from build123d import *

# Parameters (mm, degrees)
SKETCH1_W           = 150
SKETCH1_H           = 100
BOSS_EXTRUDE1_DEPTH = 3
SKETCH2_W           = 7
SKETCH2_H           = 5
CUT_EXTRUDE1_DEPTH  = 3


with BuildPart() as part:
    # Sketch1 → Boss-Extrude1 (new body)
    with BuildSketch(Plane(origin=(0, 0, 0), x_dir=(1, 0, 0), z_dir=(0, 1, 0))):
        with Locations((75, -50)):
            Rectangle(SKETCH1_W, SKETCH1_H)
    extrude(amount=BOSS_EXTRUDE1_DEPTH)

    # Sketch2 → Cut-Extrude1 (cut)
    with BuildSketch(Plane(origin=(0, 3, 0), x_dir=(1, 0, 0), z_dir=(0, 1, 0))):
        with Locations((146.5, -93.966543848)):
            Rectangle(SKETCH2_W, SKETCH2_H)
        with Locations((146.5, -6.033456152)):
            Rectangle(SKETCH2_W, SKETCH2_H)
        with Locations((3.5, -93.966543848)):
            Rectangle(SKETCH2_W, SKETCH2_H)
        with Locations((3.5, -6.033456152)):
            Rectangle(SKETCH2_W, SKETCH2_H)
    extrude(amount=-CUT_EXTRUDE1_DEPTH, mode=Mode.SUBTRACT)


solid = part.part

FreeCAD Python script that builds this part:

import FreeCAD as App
import Part
import Sketcher

V = App.Vector
Q = App.Units.Quantity

doc = App.newDocument("Part")
body = doc.addObject("PartDesign::Body", "Body")

# Sketch on XZ plane
sketch1 = body.newObject("Sketcher::SketchObject", "Sketch")
sketch1.AttachmentSupport = (doc.getObject("XZ_Plane"), [""])
sketch1.MapMode = "FlatFace"
sketch1.addGeometry(Part.LineSegment(V(0, 0, 0), V(0, 100, 0)), False)
sketch1.addGeometry(Part.LineSegment(V(0, 100, 0), V(150, 100, 0)), False)
sketch1.addGeometry(Part.LineSegment(V(150, 100, 0), V(150, 0, 0)), False)
sketch1.addGeometry(Part.LineSegment(V(150, 0, 0), V(0, 0, 0)), False)
sketch1.addConstraint(Sketcher.Constraint("Coincident", 0, 2, 1, 1))
sketch1.addConstraint(Sketcher.Constraint("Coincident", 1, 2, 2, 1))
sketch1.addConstraint(Sketcher.Constraint("Coincident", 2, 2, 3, 1))
sketch1.addConstraint(Sketcher.Constraint("Coincident", 3, 2, 0, 1))
sketch1.addConstraint(Sketcher.Constraint("Vertical", 0))
sketch1.addConstraint(Sketcher.Constraint("Horizontal", 1))
sketch1.addConstraint(Sketcher.Constraint("Vertical", 2))
sketch1.addConstraint(Sketcher.Constraint("Horizontal", 3))
sketch1.addConstraint(Sketcher.Constraint("Coincident", 3, 2, -1, 1))
sketch1.addConstraint(Sketcher.Constraint("DistanceX", 1, 1, 1, 2, Q("150 mm")))
sketch1.addConstraint(Sketcher.Constraint("DistanceY", 0, 1, 0, 2, Q("100 mm")))
pad1 = body.newObject("PartDesign::Pad", "Pad")
pad1.Profile = sketch1
pad1.Length = 3
pad1.Reversed = True

# Sketch on XZ plane
sketch2 = body.newObject("Sketcher::SketchObject", "Sketch001")
sketch2.AttachmentSupport = (doc.getObject("XZ_Plane"), [""])
sketch2.MapMode = "FlatFace"
sketch2.AttachmentOffset = App.Placement(V(0, 0, -3), App.Rotation())
sketch2.addGeometry(Part.LineSegment(V(143, 91.466544, 0), V(143, 96.466544, 0)), False)
sketch2.addGeometry(Part.LineSegment(V(143, 96.466544, 0), V(150, 96.466544, 0)), False)
sketch2.addGeometry(Part.LineSegment(V(150, 96.466544, 0), V(150, 91.466544, 0)), False)
sketch2.addGeometry(Part.LineSegment(V(150, 91.466544, 0), V(143, 91.466544, 0)), False)
sketch2.addGeometry(Part.LineSegment(V(143, 3.533456, 0), V(143, 8.533456, 0)), False)
sketch2.addGeometry(Part.LineSegment(V(143, 8.533456, 0), V(150, 8.533456, 0)), False)
sketch2.addGeometry(Part.LineSegment(V(150, 8.533456, 0), V(150, 3.533456, 0)), False)
sketch2.addGeometry(Part.LineSegment(V(150, 3.533456, 0), V(143, 3.533456, 0)), False)
sketch2.addGeometry(Part.LineSegment(V(0, 91.466544, 0), V(0, 96.466544, 0)), False)
sketch2.addGeometry(Part.LineSegment(V(0, 96.466544, 0), V(7, 96.466544, 0)), False)
sketch2.addGeometry(Part.LineSegment(V(7, 96.466544, 0), V(7, 91.466544, 0)), False)
sketch2.addGeometry(Part.LineSegment(V(7, 91.466544, 0), V(0, 91.466544, 0)), False)
sketch2.addGeometry(Part.LineSegment(V(0, 3.533456, 0), V(0, 8.533456, 0)), False)
sketch2.addGeometry(Part.LineSegment(V(0, 8.533456, 0), V(7, 8.533456, 0)), False)
sketch2.addGeometry(Part.LineSegment(V(7, 8.533456, 0), V(7, 3.533456, 0)), False)
sketch2.addGeometry(Part.LineSegment(V(7, 3.533456, 0), V(0, 3.533456, 0)), False)
sketch2.addConstraint(Sketcher.Constraint("Coincident", 0, 2, 1, 1))
sketch2.addConstraint(Sketcher.Constraint("Coincident", 1, 2, 2, 1))
sketch2.addConstraint(Sketcher.Constraint("Coincident", 2, 2, 3, 1))
sketch2.addConstraint(Sketcher.Constraint("Coincident", 3, 2, 0, 1))
sketch2.addConstraint(Sketcher.Constraint("Coincident", 4, 2, 5, 1))
sketch2.addConstraint(Sketcher.Constraint("Coincident", 5, 2, 6, 1))
sketch2.addConstraint(Sketcher.Constraint("Coincident", 6, 2, 7, 1))
sketch2.addConstraint(Sketcher.Constraint("Coincident", 7, 2, 4, 1))
sketch2.addConstraint(Sketcher.Constraint("Coincident", 8, 2, 9, 1))
sketch2.addConstraint(Sketcher.Constraint("Coincident", 9, 2, 10, 1))
sketch2.addConstraint(Sketcher.Constraint("Coincident", 10, 2, 11, 1))
sketch2.addConstraint(Sketcher.Constraint("Coincident", 11, 2, 8, 1))
sketch2.addConstraint(Sketcher.Constraint("Coincident", 12, 2, 13, 1))
sketch2.addConstraint(Sketcher.Constraint("Coincident", 13, 2, 14, 1))
sketch2.addConstraint(Sketcher.Constraint("Coincident", 14, 2, 15, 1))
sketch2.addConstraint(Sketcher.Constraint("Coincident", 15, 2, 12, 1))
sketch2.addConstraint(Sketcher.Constraint("Vertical", 0))
sketch2.addConstraint(Sketcher.Constraint("Horizontal", 1))
sketch2.addConstraint(Sketcher.Constraint("Vertical", 2))
sketch2.addConstraint(Sketcher.Constraint("Horizontal", 3))
sketch2.addConstraint(Sketcher.Constraint("Vertical", 4))
sketch2.addConstraint(Sketcher.Constraint("Horizontal", 5))
sketch2.addConstraint(Sketcher.Constraint("Vertical", 6))
sketch2.addConstraint(Sketcher.Constraint("Horizontal", 7))
sketch2.addConstraint(Sketcher.Constraint("Vertical", 8))
sketch2.addConstraint(Sketcher.Constraint("Horizontal", 9))
sketch2.addConstraint(Sketcher.Constraint("Vertical", 10))
sketch2.addConstraint(Sketcher.Constraint("Horizontal", 11))
sketch2.addConstraint(Sketcher.Constraint("Vertical", 12))
sketch2.addConstraint(Sketcher.Constraint("Horizontal", 13))
sketch2.addConstraint(Sketcher.Constraint("Vertical", 14))
sketch2.addConstraint(Sketcher.Constraint("Horizontal", 15))
sketch2.addConstraint(Sketcher.Constraint("PointOnObject", 8, 2, -2))
sketch2.addConstraint(Sketcher.Constraint("PointOnObject", 12, 2, -2))
sketch2.addConstraint(Sketcher.Constraint("Horizontal", 1, 2, 8, 2))
sketch2.addConstraint(Sketcher.Constraint("Horizontal", 3, 2, 10, 2))
sketch2.addConstraint(Sketcher.Constraint("Horizontal", 5, 2, 12, 2))
sketch2.addConstraint(Sketcher.Constraint("Horizontal", 7, 2, 14, 2))
sketch2.addConstraint(Sketcher.Constraint("Vertical", 3, 2, 4, 2))
sketch2.addConstraint(Sketcher.Constraint("Vertical", 2, 2, 5, 2))
sketch2.addConstraint(Sketcher.Constraint("Vertical", 10, 2, 13, 2))
sketch2.addConstraint(Sketcher.Constraint("Equal", 7, 9))
sketch2.addConstraint(Sketcher.Constraint("Equal", 2, 4))
sketch2.addConstraint(Sketcher.Constraint("DistanceX", 1, 1, 1, 2, Q("7 mm")))
sketch2.addConstraint(Sketcher.Constraint("DistanceY", 0, 1, 0, 2, Q("5 mm")))
sketch2.addConstraint(Sketcher.Constraint("DistanceX", -1, 1, 0, 2, Q("143 mm")))
sketch2.addConstraint(Sketcher.Constraint("DistanceY", -1, 1, 0, 2, Q("96.466544 mm")))
sketch2.addConstraint(Sketcher.Constraint("DistanceY", -1, 1, 4, 2, Q("8.533456 mm")))
pocket1 = body.newObject("PartDesign::Pocket", "Pocket")
pocket1.Profile = sketch2
pocket1.Length = 3
pocket1.Reversed = True

doc.recompute()
